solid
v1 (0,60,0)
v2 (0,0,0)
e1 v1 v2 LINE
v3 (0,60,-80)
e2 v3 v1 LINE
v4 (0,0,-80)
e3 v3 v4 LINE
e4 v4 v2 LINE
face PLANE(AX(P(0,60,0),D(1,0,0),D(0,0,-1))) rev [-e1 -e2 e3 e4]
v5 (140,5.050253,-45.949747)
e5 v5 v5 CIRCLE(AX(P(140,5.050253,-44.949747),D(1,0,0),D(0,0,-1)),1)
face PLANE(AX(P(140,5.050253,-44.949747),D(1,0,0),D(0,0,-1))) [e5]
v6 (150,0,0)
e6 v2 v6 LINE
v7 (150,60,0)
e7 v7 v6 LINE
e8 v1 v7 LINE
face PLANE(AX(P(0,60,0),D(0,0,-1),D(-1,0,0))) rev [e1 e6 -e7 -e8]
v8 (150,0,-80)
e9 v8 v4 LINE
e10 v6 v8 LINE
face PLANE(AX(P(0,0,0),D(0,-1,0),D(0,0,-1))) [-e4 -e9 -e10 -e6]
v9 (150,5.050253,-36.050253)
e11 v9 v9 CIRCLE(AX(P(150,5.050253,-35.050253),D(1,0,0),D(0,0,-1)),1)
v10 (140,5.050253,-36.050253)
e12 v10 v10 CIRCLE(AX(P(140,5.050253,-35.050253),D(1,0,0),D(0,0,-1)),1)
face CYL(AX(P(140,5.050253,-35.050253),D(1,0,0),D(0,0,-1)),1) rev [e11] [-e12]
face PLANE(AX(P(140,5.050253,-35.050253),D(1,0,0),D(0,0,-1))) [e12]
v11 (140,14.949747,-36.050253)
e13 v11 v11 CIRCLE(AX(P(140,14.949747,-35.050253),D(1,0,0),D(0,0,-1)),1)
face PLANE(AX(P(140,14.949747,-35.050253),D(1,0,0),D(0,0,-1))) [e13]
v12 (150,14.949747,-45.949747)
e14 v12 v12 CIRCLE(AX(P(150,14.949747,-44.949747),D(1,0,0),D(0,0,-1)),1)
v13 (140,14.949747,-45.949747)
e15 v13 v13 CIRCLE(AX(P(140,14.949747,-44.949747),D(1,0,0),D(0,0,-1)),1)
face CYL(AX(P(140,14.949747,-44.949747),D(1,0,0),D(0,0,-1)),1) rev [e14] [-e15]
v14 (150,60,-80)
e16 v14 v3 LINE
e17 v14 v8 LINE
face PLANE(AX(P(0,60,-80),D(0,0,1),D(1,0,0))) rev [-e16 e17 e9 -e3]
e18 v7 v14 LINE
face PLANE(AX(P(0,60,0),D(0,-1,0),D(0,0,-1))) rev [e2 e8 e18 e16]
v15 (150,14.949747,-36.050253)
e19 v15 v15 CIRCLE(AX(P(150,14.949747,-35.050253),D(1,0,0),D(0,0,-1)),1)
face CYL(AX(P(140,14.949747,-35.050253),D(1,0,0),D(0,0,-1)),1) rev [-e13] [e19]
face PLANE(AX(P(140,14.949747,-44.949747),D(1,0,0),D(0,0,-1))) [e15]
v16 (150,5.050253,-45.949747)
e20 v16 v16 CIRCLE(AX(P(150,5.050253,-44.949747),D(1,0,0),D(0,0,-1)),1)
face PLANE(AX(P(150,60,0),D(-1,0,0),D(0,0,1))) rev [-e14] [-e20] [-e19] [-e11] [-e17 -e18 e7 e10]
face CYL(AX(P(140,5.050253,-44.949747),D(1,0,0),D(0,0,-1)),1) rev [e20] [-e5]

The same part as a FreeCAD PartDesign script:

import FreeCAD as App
import Part
import Sketcher
from FreeCAD import Vector

doc = App.newDocument("Part")
body = doc.addObject("PartDesign::Body", "Body")

# Sketch on XZ plane
sketch1 = body.newObject("Sketcher::SketchObject", "Sketch")
sketch1.AttachmentSupport = (doc.getObject("XZ_Plane"), [""])
sketch1.MapMode = "FlatFace"
sketch1.addGeometry([
    Part.LineSegment(Vector(0, -80, 0), Vector(0, 0, 0)),
    Part.LineSegment(Vector(0, 0, 0), Vector(150, 0, 0)),
    Part.LineSegment(Vector(150, 0, 0), Vector(150, -80, 0)),
    Part.LineSegment(Vector(150, -80, 0), Vector(0, -80, 0)),
], False)
sketch1.addConstraint([
    Sketcher.Constraint("Coincident", 0, 2, 1, 1),
    Sketcher.Constraint("Coincident", 1, 2, 2, 1),
    Sketcher.Constraint("Coincident", 2, 2, 3, 1),
    Sketcher.Constraint("Coincident", 3, 2, 0, 1),
    Sketcher.Constraint("Vertical", 0),
    Sketcher.Constraint("Horizontal", 1),
    Sketcher.Constraint("Vertical", 2),
    Sketcher.Constraint("Horizontal", 3),
    Sketcher.Constraint("Coincident", 0, 2, -1, 1),
    Sketcher.Constraint("DistanceX", 1, 1, 1, 2, 150.0),
    Sketcher.Constraint("DistanceY", 0, 1, 0, 2, 80.0),
])
pad1 = body.newObject("PartDesign::Pad", "Pad")
pad1.Profile = sketch1
pad1.Length = 60
pad1.Reversed = True

# Sketch on YZ plane
sketch2 = body.newObject("Sketcher::SketchObject", "Sketch001")
sketch2.AttachmentSupport = (doc.getObject("YZ_Plane"), [""])
sketch2.MapMode = "FlatFace"
sketch2.AttachmentOffset = App.Placement(Vector(0, 0, 150), App.Rotation())
sketch2.addGeometry([
    Part.Circle(Vector(14.949747, -35.050253, 0), Vector(0, 0, 1), 1),
    Part.Circle(Vector(14.949747, -44.949747, 0), Vector(0, 0, 1), 1),
    Part.Circle(Vector(5.050253, -44.949747, 0), Vector(0, 0, 1), 1),
    Part.Circle(Vector(5.050253, -35.050253, 0), Vector(0, 0, 1), 1),
], False)
sketch2.addConstraint([
    Sketcher.Constraint("Equal", 0, 1),
    Sketcher.Constraint("Equal", 1, 2),
    Sketcher.Constraint("Equal", 2, 3),
    Sketcher.Constraint("Horizontal", 1, 3, 2, 3),
    Sketcher.Constraint("Horizontal", 0, 3, 3, 3),
    Sketcher.Constraint("Vertical", 0, 3, 1, 3),
    Sketcher.Constraint("Vertical", 2, 3, 3, 3),
    Sketcher.Constraint("Diameter", 0, 2.0),
    Sketcher.Constraint("DistanceX", -1, 1, 0, 3, 14.949747),
    Sketcher.Constraint("DistanceY", 0, 3, -1, 1, 35.050253),
    Sketcher.Constraint("DistanceY", 1, 3, -1, 1, 44.949747),
    Sketcher.Constraint("DistanceX", -1, 1, 2, 3, 5.050253),
])
pocket1 = body.newObject("PartDesign::Pocket", "Pocket")
pocket1.Profile = sketch2
pocket1.Length = 10

doc.recompute()
